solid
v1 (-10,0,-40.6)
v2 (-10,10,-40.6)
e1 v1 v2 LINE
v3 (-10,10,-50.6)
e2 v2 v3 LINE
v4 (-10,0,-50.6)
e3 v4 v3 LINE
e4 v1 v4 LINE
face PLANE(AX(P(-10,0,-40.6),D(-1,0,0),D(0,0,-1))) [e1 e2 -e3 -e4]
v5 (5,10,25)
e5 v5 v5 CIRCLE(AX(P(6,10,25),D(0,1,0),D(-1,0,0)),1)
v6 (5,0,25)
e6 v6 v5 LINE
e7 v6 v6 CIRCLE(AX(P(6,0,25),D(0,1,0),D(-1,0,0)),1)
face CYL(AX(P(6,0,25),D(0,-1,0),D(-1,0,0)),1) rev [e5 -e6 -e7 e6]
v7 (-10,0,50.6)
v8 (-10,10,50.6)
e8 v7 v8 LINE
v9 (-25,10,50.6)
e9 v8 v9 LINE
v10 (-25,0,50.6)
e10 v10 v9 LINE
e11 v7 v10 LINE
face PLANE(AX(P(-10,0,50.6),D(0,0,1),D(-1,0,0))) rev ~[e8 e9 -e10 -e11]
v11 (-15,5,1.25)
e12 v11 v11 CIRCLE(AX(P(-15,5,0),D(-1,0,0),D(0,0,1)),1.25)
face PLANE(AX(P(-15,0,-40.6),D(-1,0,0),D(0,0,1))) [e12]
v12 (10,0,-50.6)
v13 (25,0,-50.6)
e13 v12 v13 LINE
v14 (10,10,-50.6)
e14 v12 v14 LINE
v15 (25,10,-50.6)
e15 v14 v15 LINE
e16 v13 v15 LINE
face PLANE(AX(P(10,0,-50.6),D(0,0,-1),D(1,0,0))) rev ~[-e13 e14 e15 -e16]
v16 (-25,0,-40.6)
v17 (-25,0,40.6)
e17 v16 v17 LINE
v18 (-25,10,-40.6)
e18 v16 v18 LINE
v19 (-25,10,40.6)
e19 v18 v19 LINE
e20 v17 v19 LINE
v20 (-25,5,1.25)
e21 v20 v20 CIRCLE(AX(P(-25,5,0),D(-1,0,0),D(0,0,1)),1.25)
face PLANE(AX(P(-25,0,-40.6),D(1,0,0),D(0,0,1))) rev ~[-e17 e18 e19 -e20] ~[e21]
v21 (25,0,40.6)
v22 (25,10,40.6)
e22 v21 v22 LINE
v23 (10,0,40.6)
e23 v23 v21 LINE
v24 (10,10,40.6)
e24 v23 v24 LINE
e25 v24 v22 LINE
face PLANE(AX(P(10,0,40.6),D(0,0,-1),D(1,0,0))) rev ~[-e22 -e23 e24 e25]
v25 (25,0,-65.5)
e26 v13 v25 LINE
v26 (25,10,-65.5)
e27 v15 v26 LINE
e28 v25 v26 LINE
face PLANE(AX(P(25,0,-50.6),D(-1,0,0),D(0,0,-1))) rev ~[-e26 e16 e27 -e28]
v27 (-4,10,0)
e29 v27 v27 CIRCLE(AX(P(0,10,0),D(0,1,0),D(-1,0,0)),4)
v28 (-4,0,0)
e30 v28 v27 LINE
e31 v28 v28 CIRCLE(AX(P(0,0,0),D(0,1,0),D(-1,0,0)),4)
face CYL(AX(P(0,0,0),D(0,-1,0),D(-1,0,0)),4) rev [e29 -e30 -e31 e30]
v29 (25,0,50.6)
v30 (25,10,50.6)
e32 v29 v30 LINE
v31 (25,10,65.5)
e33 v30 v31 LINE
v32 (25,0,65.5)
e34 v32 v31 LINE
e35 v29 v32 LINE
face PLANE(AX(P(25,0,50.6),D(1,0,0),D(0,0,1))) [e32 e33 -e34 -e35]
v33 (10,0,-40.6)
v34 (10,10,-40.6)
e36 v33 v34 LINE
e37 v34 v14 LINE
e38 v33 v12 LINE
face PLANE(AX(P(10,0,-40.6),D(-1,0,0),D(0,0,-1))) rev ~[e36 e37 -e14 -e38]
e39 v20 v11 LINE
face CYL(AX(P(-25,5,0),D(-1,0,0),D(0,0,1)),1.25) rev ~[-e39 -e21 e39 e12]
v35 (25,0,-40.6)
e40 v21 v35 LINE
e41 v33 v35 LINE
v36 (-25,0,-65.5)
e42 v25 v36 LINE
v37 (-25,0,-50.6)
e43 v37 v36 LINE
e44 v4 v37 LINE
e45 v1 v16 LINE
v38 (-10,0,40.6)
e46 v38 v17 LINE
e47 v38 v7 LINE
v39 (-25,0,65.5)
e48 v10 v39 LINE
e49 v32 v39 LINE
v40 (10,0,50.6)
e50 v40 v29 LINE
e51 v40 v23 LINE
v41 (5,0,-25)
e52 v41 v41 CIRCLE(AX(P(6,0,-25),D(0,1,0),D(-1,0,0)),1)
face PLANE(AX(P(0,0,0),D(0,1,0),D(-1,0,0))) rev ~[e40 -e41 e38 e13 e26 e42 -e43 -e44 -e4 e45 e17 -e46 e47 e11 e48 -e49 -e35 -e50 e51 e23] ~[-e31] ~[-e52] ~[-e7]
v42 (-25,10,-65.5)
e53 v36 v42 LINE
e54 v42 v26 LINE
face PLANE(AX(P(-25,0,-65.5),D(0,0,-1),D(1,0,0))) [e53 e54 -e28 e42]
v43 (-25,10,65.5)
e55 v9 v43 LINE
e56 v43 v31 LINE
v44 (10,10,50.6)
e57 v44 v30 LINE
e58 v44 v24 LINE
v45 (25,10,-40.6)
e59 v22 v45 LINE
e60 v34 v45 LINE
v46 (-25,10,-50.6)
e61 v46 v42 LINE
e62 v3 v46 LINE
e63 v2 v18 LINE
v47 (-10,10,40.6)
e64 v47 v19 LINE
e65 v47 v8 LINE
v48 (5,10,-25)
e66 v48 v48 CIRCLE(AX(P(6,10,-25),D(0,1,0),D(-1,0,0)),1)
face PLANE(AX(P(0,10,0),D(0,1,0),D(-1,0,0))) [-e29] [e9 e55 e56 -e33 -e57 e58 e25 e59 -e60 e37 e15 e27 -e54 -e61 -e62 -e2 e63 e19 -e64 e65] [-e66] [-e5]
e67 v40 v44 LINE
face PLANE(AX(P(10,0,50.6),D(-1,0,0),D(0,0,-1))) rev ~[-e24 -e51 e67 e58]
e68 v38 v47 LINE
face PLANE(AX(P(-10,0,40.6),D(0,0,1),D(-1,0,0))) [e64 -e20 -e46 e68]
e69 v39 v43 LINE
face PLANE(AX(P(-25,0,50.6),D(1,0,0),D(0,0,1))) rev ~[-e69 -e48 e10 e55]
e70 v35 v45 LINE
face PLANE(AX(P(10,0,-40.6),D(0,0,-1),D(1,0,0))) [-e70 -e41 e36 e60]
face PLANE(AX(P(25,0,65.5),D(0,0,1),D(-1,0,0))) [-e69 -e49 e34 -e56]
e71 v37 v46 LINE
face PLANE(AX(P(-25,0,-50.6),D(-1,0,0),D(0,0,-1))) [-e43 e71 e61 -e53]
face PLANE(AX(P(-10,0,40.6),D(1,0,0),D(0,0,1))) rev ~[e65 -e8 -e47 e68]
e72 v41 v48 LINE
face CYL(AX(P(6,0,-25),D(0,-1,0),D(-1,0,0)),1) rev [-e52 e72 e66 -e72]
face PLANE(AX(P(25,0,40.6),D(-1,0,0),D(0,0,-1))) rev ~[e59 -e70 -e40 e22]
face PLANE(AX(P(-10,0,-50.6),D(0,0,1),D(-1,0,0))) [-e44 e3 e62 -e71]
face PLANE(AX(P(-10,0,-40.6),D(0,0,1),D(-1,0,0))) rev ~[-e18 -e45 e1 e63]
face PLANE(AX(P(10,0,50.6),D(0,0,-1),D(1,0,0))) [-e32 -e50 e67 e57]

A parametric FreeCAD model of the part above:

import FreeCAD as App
import Part
import Sketcher

V = App.Vector
Q = App.Units.Quantity

doc = App.newDocument("Part")
params = doc.addObject("Spreadsheet::Sheet", "Params")
for row, (alias, value) in enumerate([
    ("sketch1_width", "15 mm"),
    ("sketch1_width2", "50 mm"),
    ("sketch1_height", "14.9 mm"),
    ("sketch1_height2", "81.2 mm"),
    ("pad1_length", "10 mm"),
    ("sketch2_diameter", "8 mm"),
    ("sketch2_diameter2", "2 mm"),
    ("pocket1_length", "10 mm"),
    ("sketch3_diameter", "2.5 mm"),
    ("pocket2_length", "10 mm"),
], start=1):
    params.set(f"A{row}", alias)
    params.set(f"B{row}", "=" + value)
    params.setAlias(f"B{row}", alias)

body = doc.addObject("PartDesign::Body", "Body")

sketch1 = body.newObject("Sketcher::SketchObject", "Sketch")
sketch1.AttachmentSupport = (doc.getObject("XZ_Plane"), [""])
sketch1.MapMode = "FlatFace"
sketch1.addGeometry([
    Part.LineSegment(V(-25, -66, 0), V(-25, -51, 0)),
    Part.LineSegment(V(-25, -51, 0), V(-10, -51, 0)),
    Part.LineSegment(V(-10, -51, 0), V(-10, -41, 0)),
    Part.LineSegment(V(-10, -41, 0), V(-25, -41, 0)),
    Part.LineSegment(V(-25, -41, 0), V(-25, 41, 0)),
    Part.LineSegment(V(-25, 41, 0), V(-10, 41, 0)),
    Part.LineSegment(V(-10, 41, 0), V(-10, 51, 0)),
    Part.LineSegment(V(-10, 51, 0), V(-25, 51, 0)),
    Part.LineSegment(V(-25, 51, 0), V(-25, 66, 0)),
    Part.LineSegment(V(-25, 66, 0), V(25, 66, 0)),
    Part.LineSegment(V(25, 66, 0), V(25, 51, 0)),
    Part.LineSegment(V(25, 51, 0), V(10, 51, 0)),
    Part.LineSegment(V(10, 51, 0), V(10, 41, 0)),
    Part.LineSegment(V(10, 41, 0), V(25, 41, 0)),
    Part.LineSegment(V(25, 41, 0), V(25, -41, 0)),
    Part.LineSegment(V(25, -41, 0), V(10, -41, 0)),
    Part.LineSegment(V(10, -41, 0), V(10, -51, 0)),
    Part.LineSegment(V(10, -51, 0), V(25, -51, 0)),
    Part.LineSegment(V(25, -51, 0), V(25, -66, 0)),
    Part.LineSegment(V(25, -66, 0), V(-25, -66, 0)),
], False)
sketch1.addConstraint([
    Sketcher.Constraint("Coincident", 0, 2, 1, 1),
    Sketcher.Constraint("Coincident", 1, 2, 2, 1),
    Sketcher.Constraint("Coincident", 2, 2, 3, 1),
    Sketcher.Constraint("Coincident", 3, 2, 4, 1),
    Sketcher.Constraint("Coincident", 4, 2, 5, 1),
    Sketcher.Constraint("Coincident", 5, 2, 6, 1),
    Sketcher.Constraint("Coincident", 6, 2, 7, 1),
    Sketcher.Constraint("Coincident", 7, 2, 8, 1),
    Sketcher.Constraint("Coincident", 8, 2, 9, 1),
    Sketcher.Constraint("Coincident", 9, 2, 10, 1),
    Sketcher.Constraint("Coincident", 10, 2, 11, 1),
    Sketcher.Constraint("Coincident", 11, 2, 12, 1),
    Sketcher.Constraint("Coincident", 12, 2, 13, 1),
    Sketcher.Constraint("Coincident", 13, 2, 14, 1),
    Sketcher.Constraint("Coincident", 14, 2, 15, 1),
    Sketcher.Constraint("Coincident", 15, 2, 16, 1),
    Sketcher.Constraint("Coincident", 16, 2, 17, 1),
    Sketcher.Constraint("Coincident", 17, 2, 18, 1),
    Sketcher.Constraint("Coincident", 18, 2, 19, 1),
    Sketcher.Constraint("Coincident", 19, 2, 0, 1),
    Sketcher.Constraint("Vertical", 0),
    Sketcher.Constraint("Horizontal", 1),
    Sketcher.Constraint("Vertical", 2),
    Sketcher.Constraint("Horizontal", 3),
    Sketcher.Constraint("Vertical", 4),
    Sketcher.Constraint("Horizontal", 5),
    Sketcher.Constraint("Vertical", 6),
    Sketcher.Constraint("Horizontal", 7),
    Sketcher.Constraint("Vertical", 8),
    Sketcher.Constraint("Horizontal", 9),
    Sketcher.Constraint("Vertical", 10),
    Sketcher.Constraint("Horizontal", 11),
    Sketcher.Constraint("Vertical", 12),
    Sketcher.Constraint("Horizontal", 13),
    Sketcher.Constraint("Vertical", 14),
    Sketcher.Constraint("Horizontal", 15),
    Sketcher.Constraint("Vertical", 16),
    Sketcher.Constraint("Horizontal", 17),
    Sketcher.Constraint("Vertical", 18),
    Sketcher.Constraint("Horizontal", 19),
    Sketcher.Constraint("Symmetric", 0, 2, 10, 2, -1, 1),
    Sketcher.Constraint("Symmetric", 2, 2, 12, 2, -1, 1),
    Sketcher.Constraint("Symmetric", 4, 2, 14, 2, -1, 1),
    Sketcher.Constraint("Symmetric", 6, 2, 16, 2, -1, 1),
    Sketcher.Constraint("Symmetric", 8, 2, 18, 2, -1, 1),
    Sketcher.Constraint("Symmetric", 7, 2, 10, 2, -2),
    Sketcher.Constraint("Symmetric", 5, 2, 12, 2, -2),
    Sketcher.Constraint("Vertical", 0, 2, 3, 2),
    Sketcher.Constraint("DistanceX", 1, 1, 1, 2, Q("15 mm")),
    Sketcher.Constraint("DistanceX", 9, 1, 9, 2, Q("50 mm")),
    Sketcher.Constraint("DistanceY", 0, 1, 0, 2, Q("14.9 mm")),
    Sketcher.Constraint("DistanceY", 4, 2, 8, 2, Q("24.9 mm")),
    Sketcher.Constraint("DistanceY", 4, 1, 4, 2, Q("81.2 mm")),
])
sketch1.setExpression("Constraints[48]", "Params.sketch1_width")
sketch1.setExpression("Constraints[49]", "Params.sketch1_width2")
sketch1.setExpression("Constraints[50]", "Params.sketch1_height")
sketch1.setExpression("Constraints[52]", "Params.sketch1_height2")
pad1 = body.newObject("PartDesign::Pad", "Pad")
pad1.Profile = sketch1
pad1.setExpression("Length", "Params.pad1_length")
pad1.Reversed = True

sketch2 = body.newObject("Sketcher::SketchObject", "Sketch001")
sketch2.AttachmentSupport = (doc.getObject("XZ_Plane"), [""])
sketch2.MapMode = "FlatFace"
sketch2.addGeometry([
    Part.Circle(V(0, 0, 0), V(0, 0, 1), 4),
    Part.Circle(V(6, -25, 0), V(0, 0, 1), 1),
    Part.Circle(V(6, 25, 0), V(0, 0, 1), 1),
], False)
sketch2.addConstraint([
    Sketcher.Constraint("Coincident", 0, 3, -1, 1),
    Sketcher.Constraint("Equal", 1, 2),
    Sketcher.Constraint("Symmetric", 1, 3, 2, 3, -1),
    Sketcher.Constraint("Diameter", 0, Q("8 mm")),
    Sketcher.Constraint("Diameter", 1, Q("2 mm")),
    Sketcher.Constraint("DistanceY", 1, 3, 2, 3, Q("50 mm")),
    Sketcher.Constraint("DistanceX", -1, 1, 1, 3, Q("6 mm")),
])
sketch2.setExpression("Constraints[3]", "Params.sketch2_diameter")
sketch2.setExpression("Constraints[4]", "Params.sketch2_diameter2")
pocket1 = body.newObject("PartDesign::Pocket", "Pocket")
pocket1.Profile = sketch2
pocket1.setExpression("Length", "Params.pocket1_length")

sketch3 = body.newObject("Sketcher::SketchObject", "Sketch002")
sketch3.AttachmentSupport = (doc.getObject("YZ_Plane"), [""])
sketch3.MapMode = "FlatFace"
sketch3.AttachmentOffset = App.Placement(V(0, 0, -25), App.Rotation())
sketch3.addGeometry(Part.Circle(V(5, 0, 0), V(0, 0, 1), 1.2), False)
sketch3.addConstraint([
    Sketcher.Constraint("PointOnObject", 0, 3, -1),
    Sketcher.Constraint("Diameter", 0, Q("2.5 mm")),
    Sketcher.Constraint("DistanceX", -1, 1, 0, 3, Q("5 mm")),
])
sketch3.setExpression("Constraints[1]", "Params.sketch3_diameter")
pocket2 = body.newObject("PartDesign::Pocket", "Pocket001")
pocket2.Profile = sketch3
pocket2.setExpression("Length", "Params.pocket2_length")
pocket2.Reversed = True

doc.recompute()
